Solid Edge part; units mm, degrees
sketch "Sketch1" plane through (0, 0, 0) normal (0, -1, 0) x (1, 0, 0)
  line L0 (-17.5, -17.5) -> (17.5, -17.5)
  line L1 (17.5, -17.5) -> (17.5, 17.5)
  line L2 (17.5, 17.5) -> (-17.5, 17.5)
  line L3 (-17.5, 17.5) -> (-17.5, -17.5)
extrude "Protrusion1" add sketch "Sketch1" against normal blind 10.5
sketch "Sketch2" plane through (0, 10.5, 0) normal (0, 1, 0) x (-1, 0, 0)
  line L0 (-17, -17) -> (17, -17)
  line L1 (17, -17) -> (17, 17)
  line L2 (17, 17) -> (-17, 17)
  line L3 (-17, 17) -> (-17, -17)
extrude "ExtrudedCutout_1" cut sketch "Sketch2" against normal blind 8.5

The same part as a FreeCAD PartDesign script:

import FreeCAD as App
import Part
import Sketcher

V = App.Vector

doc = App.newDocument("Part")
body = doc.addObject("PartDesign::Body", "Body")

# Sketch on XZ plane
sketch1 = body.newObject("Sketcher::SketchObject", "Sketch")
sketch1.AttachmentSupport = (doc.getObject("XZ_Plane"), [""])
sketch1.MapMode = "FlatFace"
sketch1.addGeometry([
    Part.LineSegment(V(-18, 18, 0), V(-18, -18, 0)),
    Part.LineSegment(V(-18, -18, 0), V(18, -18, 0)),
    Part.LineSegment(V(18, -18, 0), V(18, 18, 0)),
    Part.LineSegment(V(18, 18, 0), V(-18, 18, 0)),
], False)
sketch1.addConstraint([
    Sketcher.Constraint("Coincident", 0, 2, 1, 1),
    Sketcher.Constraint("Coincident", 1, 2, 2, 1),
    Sketcher.Constraint("Coincident", 2, 2, 3, 1),
    Sketcher.Constraint("Coincident", 3, 2, 0, 1),
    Sketcher.Constraint("Vertical", 0),
    Sketcher.Constraint("Horizontal", 1),
    Sketcher.Constraint("Vertical", 2),
    Sketcher.Constraint("Horizontal", 3),
    Sketcher.Constraint("Symmetric", 0, 2, 2, 2, -1, 1),
    Sketcher.Constraint("Equal", 3, 0),
    Sketcher.Constraint("DistanceX", 1, 1, 1, 2, 35.0),
])
pad1 = body.newObject("PartDesign::Pad", "Pad")
pad1.Profile = sketch1
pad1.Length = 10.5
pad1.Reversed = True

# Sketch on XZ plane
sketch2 = body.newObject("Sketcher::SketchObject", "Sketch001")
sketch2.AttachmentSupport = (doc.getObject("XZ_Plane"), [""])
sketch2.MapMode = "FlatFace"
sketch2.AttachmentOffset = App.Placement(V(0, 0, -10.5), App.Rotation())
sketch2.addGeometry([
    Part.LineSegment(V(17, 17, 0), V(17, -17, 0)),
    Part.LineSegment(V(17, -17, 0), V(-17, -17, 0)),
    Part.LineSegment(V(-17, -17, 0), V(-17, 17, 0)),
    Part.LineSegment(V(-17, 17, 0), V(17, 17, 0)),
], False)
sketch2.addConstraint([
    Sketcher.Constraint("Coincident", 0, 2, 1, 1),
    Sketcher.Constraint("Coincident", 1, 2, 2, 1),
    Sketcher.Constraint("Coincident", 2, 2, 3, 1),
    Sketcher.Constraint("Coincident", 3, 2, 0, 1),
    Sketcher.Constraint("Vertical", 0),
    Sketcher.Constraint("Horizontal", 1),
    Sketcher.Constraint("Vertical", 2),
    Sketcher.Constraint("Horizontal", 3),
    Sketcher.Constraint("Symmetric", 0, 2, 2, 2, -1, 1),
    Sketcher.Constraint("Equal", 3, 0),
    Sketcher.Constraint("DistanceX", 1, 2, 1, 1, 34.0),
])
pocket1 = body.newObject("PartDesign::Pocket", "Pocket")
pocket1.Profile = sketch2
pocket1.Length = 8.5
pocket1.Reversed = True

doc.recompute()
